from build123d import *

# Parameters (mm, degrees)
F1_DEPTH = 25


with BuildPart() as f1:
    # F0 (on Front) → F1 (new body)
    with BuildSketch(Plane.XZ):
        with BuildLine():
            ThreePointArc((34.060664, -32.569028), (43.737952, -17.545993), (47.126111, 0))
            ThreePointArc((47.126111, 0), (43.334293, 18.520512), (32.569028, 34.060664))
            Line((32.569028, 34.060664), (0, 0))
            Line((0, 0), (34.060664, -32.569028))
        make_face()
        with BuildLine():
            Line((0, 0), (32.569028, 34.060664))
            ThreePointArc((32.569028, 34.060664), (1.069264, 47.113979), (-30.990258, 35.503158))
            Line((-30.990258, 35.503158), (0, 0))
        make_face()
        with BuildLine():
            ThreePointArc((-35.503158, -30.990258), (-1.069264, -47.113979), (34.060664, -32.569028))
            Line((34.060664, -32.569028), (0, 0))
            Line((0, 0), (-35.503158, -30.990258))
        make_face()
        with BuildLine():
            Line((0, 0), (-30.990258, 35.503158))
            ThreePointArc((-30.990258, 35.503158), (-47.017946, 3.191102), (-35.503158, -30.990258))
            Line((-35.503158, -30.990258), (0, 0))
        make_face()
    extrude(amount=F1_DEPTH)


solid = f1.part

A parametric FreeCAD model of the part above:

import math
import FreeCAD as App
import Part
import Sketcher

doc = App.newDocument("Part")
body = doc.addObject("PartDesign::Body", "Body")

# Sketch on XZ plane
sketch1 = doc.addObject("Sketcher::SketchObject", "Sketch")
body.addObject(sketch1)
sketch1.AttachmentSupport = (doc.XZ_Plane, [""])
sketch1.MapMode = "FlatFace"
sketch1.addGeometry([
    Part.ArcOfCircle(Part.Circle(App.Vector(-0.000009, 0.000002, 0), App.Vector(0, 0, 1), 47.12612), math.radians(-43.717531), math.radians(-0.000003)),  # 0
    Part.ArcOfCircle(Part.Circle(App.Vector(-0.000008, -0.000002, 0), App.Vector(0, 0, 1), 47.126119), math.radians(0.000003), math.radians(46.282459)),  # 1
    Part.ArcOfCircle(Part.Circle(App.Vector(0.000001, -0.000001, 0), App.Vector(0, 0, 1), 47.126112), math.radians(46.282465), math.radians(131.117297)),  # 2
    Part.ArcOfCircle(Part.Circle(App.Vector(-0.000002, 0, 0), App.Vector(0, 0, 1), 47.126109), math.radians(131.117295), math.radians(221.117299)),  # 3
    Part.ArcOfCircle(Part.Circle(App.Vector(0.000001, 0.000001, 0), App.Vector(0, 0, 1), 47.126112), math.radians(-138.882703), math.radians(-43.717537)),  # 4
], False)
sketch1.addConstraint([
    Sketcher.Constraint("Tangent", 0, 2, 1, 1),
    Sketcher.Constraint("Tangent", 1, 2, 2, 1),
    Sketcher.Constraint("Tangent", 2, 2, 3, 1),
    Sketcher.Constraint("Tangent", 3, 2, 4, 1),
    Sketcher.Constraint("Tangent", 4, 2, 0, 1),
    Sketcher.Constraint("Coincident", 0, 3, -1, 1),
    Sketcher.Constraint("Coincident", 2, 3, -1, 1),
    Sketcher.Constraint("PointOnObject", 0, 2, -1),
    Sketcher.Constraint("Radius", 0, 47.12612),
    Sketcher.Constraint("DistanceX", 2, 2, -1, 1, 30.990258),
    Sketcher.Constraint("DistanceX", 3, 2, -1, 1, 35.503158),
    Sketcher.Constraint("DistanceX", 3, 3, 1, 2, 32.56903),
    Sketcher.Constraint("DistanceY", 4, 2, 4, 3, 32.569029),
])
pad1 = doc.addObject("PartDesign::Pad", "Pad")
body.addObject(pad1)
pad1.Profile = sketch1
pad1.Length = 25

doc.recompute()
